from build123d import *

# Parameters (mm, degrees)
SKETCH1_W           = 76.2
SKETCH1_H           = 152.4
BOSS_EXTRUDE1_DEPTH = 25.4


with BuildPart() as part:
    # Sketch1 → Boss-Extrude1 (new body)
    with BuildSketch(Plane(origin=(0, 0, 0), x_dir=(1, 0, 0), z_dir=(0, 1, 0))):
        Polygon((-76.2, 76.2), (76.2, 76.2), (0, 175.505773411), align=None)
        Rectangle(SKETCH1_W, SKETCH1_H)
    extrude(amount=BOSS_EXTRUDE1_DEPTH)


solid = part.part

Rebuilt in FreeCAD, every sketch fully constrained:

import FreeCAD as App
import Part
import Sketcher
from FreeCAD import Vector
Q = App.Units.Quantity

doc = App.newDocument("Part")
body = doc.addObject("PartDesign::Body", "Body")

sketch1 = body.newObject("Sketcher::SketchObject", "Sketch")
sketch1.AttachmentSupport = (doc.getObject("XZ_Plane"), [""])
sketch1.MapMode = "FlatFace"
sketch1.addGeometry([
    Part.LineSegment(Vector(-76.2, -76.2, 0), Vector(-38.1, -76.2, 0)),
    Part.LineSegment(Vector(-38.1, -76.2, 0), Vector(-38.1, 76.2, 0)),
    Part.LineSegment(Vector(-38.1, 76.2, 0), Vector(38.1, 76.2, 0)),
    Part.LineSegment(Vector(38.1, 76.2, 0), Vector(38.1, -76.2, 0)),
    Part.LineSegment(Vector(38.1, -76.2, 0), Vector(76.2, -76.2, 0)),
    Part.LineSegment(Vector(76.2, -76.2, 0), Vector(0, -175.505773, 0)),
    Part.LineSegment(Vector(0, -175.505773, 0), Vector(-76.2, -76.2, 0)),
], False)
sketch1.addConstraint([
    Sketcher.Constraint("Coincident", 0, 2, 1, 1),
    Sketcher.Constraint("Coincident", 1, 2, 2, 1),
    Sketcher.Constraint("Coincident", 2, 2, 3, 1),
    Sketcher.Constraint("Coincident", 3, 2, 4, 1),
    Sketcher.Constraint("Coincident", 4, 2, 5, 1),
    Sketcher.Constraint("Coincident", 5, 2, 6, 1),
    Sketcher.Constraint("Coincident", 6, 2, 0, 1),
    Sketcher.Constraint("Horizontal", 0),
    Sketcher.Constraint("Vertical", 1),
    Sketcher.Constraint("Horizontal", 2),
    Sketcher.Constraint("Vertical", 3),
    Sketcher.Constraint("Horizontal", 4),
    Sketcher.Constraint("Symmetric", 0, 2, 2, 2, -1, 1),
    Sketcher.Constraint("Symmetric", 4, 2, 6, 2, -2),
    Sketcher.Constraint("PointOnObject", 5, 2, -2),
    Sketcher.Constraint("DistanceX", 2, 1, 2, 2, Q("3 in")),
    Sketcher.Constraint("DistanceY", 1, 1, 1, 2, Q("6 in")),
    Sketcher.Constraint("DistanceX", 0, 1, 0, 2, Q("1.5 in")),
    Sketcher.Constraint("Angle", 5, Q("-127.5 deg")),
])
pad1 = body.newObject("PartDesign::Pad", "Pad")
pad1.Profile = sketch1
pad1.Length = Q("1 in")
pad1.Reversed = True

doc.recompute()
